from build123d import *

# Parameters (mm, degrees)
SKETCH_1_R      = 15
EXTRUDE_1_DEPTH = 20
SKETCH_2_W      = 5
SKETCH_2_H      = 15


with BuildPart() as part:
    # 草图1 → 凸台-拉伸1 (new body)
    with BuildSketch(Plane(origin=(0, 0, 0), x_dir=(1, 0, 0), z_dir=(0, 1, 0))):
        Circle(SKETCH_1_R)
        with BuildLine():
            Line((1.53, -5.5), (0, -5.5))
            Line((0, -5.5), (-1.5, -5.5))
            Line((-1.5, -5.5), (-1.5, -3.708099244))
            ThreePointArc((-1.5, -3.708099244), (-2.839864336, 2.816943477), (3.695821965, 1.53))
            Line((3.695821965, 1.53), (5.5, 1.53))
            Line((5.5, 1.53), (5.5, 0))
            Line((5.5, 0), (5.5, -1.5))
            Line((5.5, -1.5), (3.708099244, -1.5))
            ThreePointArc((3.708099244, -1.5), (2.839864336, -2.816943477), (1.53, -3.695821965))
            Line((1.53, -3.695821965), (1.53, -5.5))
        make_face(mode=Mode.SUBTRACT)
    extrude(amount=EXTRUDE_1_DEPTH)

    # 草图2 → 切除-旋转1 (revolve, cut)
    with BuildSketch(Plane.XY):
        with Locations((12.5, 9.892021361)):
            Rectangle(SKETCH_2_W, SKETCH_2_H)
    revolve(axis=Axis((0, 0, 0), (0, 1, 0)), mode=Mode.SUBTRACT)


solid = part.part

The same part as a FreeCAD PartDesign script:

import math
import FreeCAD as App
import Part
import Sketcher
from FreeCAD import Vector


def add_polygon(sketch, points):
    """Adds a closed chain of lines whose ends are joined by coincident constraints."""
    first, n = sketch.GeometryCount, len(points)
    for a, b in zip(points, points[1:] + points[:1]):
        sketch.addGeometry(Part.LineSegment(App.Vector(*a, 0), App.Vector(*b, 0)), False)
    for i in range(n):
        sketch.addConstraint(Sketcher.Constraint("Coincident", first + i, 2, first + (i + 1) % n, 1))

doc = App.newDocument("Part")
body = doc.addObject("PartDesign::Body", "Body")

# Sketch on XZ plane
sketch1 = body.newObject("Sketcher::SketchObject", "Sketch")
sketch1.AttachmentSupport = (doc.getObject("XZ_Plane"), [""])
sketch1.MapMode = "FlatFace"
sketch1.addGeometry([
    Part.Circle(Vector(0, 0, 0), Vector(0, 0, 1), 15),  # 0
    Part.LineSegment(Vector(1.53, 3.695822, 0), Vector(1.53, 5.5, 0)),  # 1
    Part.LineSegment(Vector(1.53, 5.5, 0), Vector(-1.5, 5.5, 0)),  # 2
    Part.LineSegment(Vector(-1.5, 5.5, 0), Vector(-1.5, 3.708099, 0)),  # 3
    Part.ArcOfCircle(Part.Circle(Vector(0, 0, 0), Vector(0, 0, 1), 4), math.radians(112.024313), math.radians(337.511375)),  # 4
    Part.LineSegment(Vector(3.695822, -1.53, 0), Vector(5.5, -1.53, 0)),  # 5
    Part.LineSegment(Vector(5.5, -1.53, 0), Vector(5.5, 1.5, 0)),  # 6
    Part.LineSegment(Vector(5.5, 1.5, 0), Vector(3.708099, 1.5, 0)),  # 7
    Part.ArcOfCircle(Part.Circle(Vector(0, 0, 0), Vector(0, 0, 1), 4), math.radians(22.024313), math.radians(67.511375)),  # 8
], False)
sketch1.addConstraint([
    Sketcher.Constraint("Coincident", 1, 2, 2, 1),
    Sketcher.Constraint("Coincident", 2, 2, 3, 1),
    Sketcher.Constraint("Coincident", 3, 2, 4, 1),
    Sketcher.Constraint("Coincident", 4, 2, 5, 1),
    Sketcher.Constraint("Coincident", 5, 2, 6, 1),
    Sketcher.Constraint("Coincident", 6, 2, 7, 1),
    Sketcher.Constraint("Coincident", 7, 2, 8, 1),
    Sketcher.Constraint("Coincident", 8, 2, 1, 1),
    Sketcher.Constraint("Vertical", 1),
    Sketcher.Constraint("Horizontal", 2),
    Sketcher.Constraint("Vertical", 3),
    Sketcher.Constraint("Horizontal", 5),
    Sketcher.Constraint("Vertical", 6),
    Sketcher.Constraint("Horizontal", 7),
    Sketcher.Constraint("Coincident", 0, 3, -1, 1),
    Sketcher.Constraint("Coincident", 4, 3, -1, 1),
    Sketcher.Constraint("Coincident", 8, 3, -1, 1),
    Sketcher.Constraint("Equal", 4, 8),
    Sketcher.Constraint("Equal", 5, 1),
    Sketcher.Constraint("Equal", 7, 3),
    Sketcher.Constraint("Equal", 2, 6),
    Sketcher.Constraint("Diameter", 0, 30.0),
    Sketcher.Constraint("Radius", 4, 4.0),
    Sketcher.Constraint("DistanceY", 6, 2, 1, 2, 4.0),
    Sketcher.Constraint("DistanceX", 2, 2, 2, 1, 3.03),
    Sketcher.Constraint("DistanceY", -1, 1, 1, 2, 5.5),
])
pad1 = body.newObject("PartDesign::Pad", "Pad")
pad1.Profile = sketch1
pad1.Length = 20
pad1.Reversed = True

# Sketch on XY plane
sketch2 = body.newObject("Sketcher::SketchObject", "Sketch001")
sketch2.AttachmentSupport = (doc.getObject("XY_Plane"), [""])
sketch2.MapMode = "FlatFace"
add_polygon(sketch2, [(10, 17.392021), (10, 2.392021), (15, 2.392021), (15, 17.392021)])  # lines 0-3
sketch2.addConstraint([
    Sketcher.Constraint("Vertical", 0),
    Sketcher.Constraint("Horizontal", 1),
    Sketcher.Constraint("Vertical", 2),
    Sketcher.Constraint("Horizontal", 3),
    Sketcher.Constraint("DistanceX", 1, 1, 1, 2, 5.0),
    Sketcher.Constraint("DistanceY", 0, 2, 0, 1, 15.0),
    Sketcher.Constraint("DistanceX", -1, 1, 0, 2, 10.0),
    Sketcher.Constraint("DistanceY", -1, 1, 0, 2, 2.392021),
])
groove = body.newObject("PartDesign::Groove", "Groove")
groove.Profile = sketch2
groove.ReferenceAxis = (sketch2, ["V_Axis"])
groove.Angle = 360

doc.recompute()
